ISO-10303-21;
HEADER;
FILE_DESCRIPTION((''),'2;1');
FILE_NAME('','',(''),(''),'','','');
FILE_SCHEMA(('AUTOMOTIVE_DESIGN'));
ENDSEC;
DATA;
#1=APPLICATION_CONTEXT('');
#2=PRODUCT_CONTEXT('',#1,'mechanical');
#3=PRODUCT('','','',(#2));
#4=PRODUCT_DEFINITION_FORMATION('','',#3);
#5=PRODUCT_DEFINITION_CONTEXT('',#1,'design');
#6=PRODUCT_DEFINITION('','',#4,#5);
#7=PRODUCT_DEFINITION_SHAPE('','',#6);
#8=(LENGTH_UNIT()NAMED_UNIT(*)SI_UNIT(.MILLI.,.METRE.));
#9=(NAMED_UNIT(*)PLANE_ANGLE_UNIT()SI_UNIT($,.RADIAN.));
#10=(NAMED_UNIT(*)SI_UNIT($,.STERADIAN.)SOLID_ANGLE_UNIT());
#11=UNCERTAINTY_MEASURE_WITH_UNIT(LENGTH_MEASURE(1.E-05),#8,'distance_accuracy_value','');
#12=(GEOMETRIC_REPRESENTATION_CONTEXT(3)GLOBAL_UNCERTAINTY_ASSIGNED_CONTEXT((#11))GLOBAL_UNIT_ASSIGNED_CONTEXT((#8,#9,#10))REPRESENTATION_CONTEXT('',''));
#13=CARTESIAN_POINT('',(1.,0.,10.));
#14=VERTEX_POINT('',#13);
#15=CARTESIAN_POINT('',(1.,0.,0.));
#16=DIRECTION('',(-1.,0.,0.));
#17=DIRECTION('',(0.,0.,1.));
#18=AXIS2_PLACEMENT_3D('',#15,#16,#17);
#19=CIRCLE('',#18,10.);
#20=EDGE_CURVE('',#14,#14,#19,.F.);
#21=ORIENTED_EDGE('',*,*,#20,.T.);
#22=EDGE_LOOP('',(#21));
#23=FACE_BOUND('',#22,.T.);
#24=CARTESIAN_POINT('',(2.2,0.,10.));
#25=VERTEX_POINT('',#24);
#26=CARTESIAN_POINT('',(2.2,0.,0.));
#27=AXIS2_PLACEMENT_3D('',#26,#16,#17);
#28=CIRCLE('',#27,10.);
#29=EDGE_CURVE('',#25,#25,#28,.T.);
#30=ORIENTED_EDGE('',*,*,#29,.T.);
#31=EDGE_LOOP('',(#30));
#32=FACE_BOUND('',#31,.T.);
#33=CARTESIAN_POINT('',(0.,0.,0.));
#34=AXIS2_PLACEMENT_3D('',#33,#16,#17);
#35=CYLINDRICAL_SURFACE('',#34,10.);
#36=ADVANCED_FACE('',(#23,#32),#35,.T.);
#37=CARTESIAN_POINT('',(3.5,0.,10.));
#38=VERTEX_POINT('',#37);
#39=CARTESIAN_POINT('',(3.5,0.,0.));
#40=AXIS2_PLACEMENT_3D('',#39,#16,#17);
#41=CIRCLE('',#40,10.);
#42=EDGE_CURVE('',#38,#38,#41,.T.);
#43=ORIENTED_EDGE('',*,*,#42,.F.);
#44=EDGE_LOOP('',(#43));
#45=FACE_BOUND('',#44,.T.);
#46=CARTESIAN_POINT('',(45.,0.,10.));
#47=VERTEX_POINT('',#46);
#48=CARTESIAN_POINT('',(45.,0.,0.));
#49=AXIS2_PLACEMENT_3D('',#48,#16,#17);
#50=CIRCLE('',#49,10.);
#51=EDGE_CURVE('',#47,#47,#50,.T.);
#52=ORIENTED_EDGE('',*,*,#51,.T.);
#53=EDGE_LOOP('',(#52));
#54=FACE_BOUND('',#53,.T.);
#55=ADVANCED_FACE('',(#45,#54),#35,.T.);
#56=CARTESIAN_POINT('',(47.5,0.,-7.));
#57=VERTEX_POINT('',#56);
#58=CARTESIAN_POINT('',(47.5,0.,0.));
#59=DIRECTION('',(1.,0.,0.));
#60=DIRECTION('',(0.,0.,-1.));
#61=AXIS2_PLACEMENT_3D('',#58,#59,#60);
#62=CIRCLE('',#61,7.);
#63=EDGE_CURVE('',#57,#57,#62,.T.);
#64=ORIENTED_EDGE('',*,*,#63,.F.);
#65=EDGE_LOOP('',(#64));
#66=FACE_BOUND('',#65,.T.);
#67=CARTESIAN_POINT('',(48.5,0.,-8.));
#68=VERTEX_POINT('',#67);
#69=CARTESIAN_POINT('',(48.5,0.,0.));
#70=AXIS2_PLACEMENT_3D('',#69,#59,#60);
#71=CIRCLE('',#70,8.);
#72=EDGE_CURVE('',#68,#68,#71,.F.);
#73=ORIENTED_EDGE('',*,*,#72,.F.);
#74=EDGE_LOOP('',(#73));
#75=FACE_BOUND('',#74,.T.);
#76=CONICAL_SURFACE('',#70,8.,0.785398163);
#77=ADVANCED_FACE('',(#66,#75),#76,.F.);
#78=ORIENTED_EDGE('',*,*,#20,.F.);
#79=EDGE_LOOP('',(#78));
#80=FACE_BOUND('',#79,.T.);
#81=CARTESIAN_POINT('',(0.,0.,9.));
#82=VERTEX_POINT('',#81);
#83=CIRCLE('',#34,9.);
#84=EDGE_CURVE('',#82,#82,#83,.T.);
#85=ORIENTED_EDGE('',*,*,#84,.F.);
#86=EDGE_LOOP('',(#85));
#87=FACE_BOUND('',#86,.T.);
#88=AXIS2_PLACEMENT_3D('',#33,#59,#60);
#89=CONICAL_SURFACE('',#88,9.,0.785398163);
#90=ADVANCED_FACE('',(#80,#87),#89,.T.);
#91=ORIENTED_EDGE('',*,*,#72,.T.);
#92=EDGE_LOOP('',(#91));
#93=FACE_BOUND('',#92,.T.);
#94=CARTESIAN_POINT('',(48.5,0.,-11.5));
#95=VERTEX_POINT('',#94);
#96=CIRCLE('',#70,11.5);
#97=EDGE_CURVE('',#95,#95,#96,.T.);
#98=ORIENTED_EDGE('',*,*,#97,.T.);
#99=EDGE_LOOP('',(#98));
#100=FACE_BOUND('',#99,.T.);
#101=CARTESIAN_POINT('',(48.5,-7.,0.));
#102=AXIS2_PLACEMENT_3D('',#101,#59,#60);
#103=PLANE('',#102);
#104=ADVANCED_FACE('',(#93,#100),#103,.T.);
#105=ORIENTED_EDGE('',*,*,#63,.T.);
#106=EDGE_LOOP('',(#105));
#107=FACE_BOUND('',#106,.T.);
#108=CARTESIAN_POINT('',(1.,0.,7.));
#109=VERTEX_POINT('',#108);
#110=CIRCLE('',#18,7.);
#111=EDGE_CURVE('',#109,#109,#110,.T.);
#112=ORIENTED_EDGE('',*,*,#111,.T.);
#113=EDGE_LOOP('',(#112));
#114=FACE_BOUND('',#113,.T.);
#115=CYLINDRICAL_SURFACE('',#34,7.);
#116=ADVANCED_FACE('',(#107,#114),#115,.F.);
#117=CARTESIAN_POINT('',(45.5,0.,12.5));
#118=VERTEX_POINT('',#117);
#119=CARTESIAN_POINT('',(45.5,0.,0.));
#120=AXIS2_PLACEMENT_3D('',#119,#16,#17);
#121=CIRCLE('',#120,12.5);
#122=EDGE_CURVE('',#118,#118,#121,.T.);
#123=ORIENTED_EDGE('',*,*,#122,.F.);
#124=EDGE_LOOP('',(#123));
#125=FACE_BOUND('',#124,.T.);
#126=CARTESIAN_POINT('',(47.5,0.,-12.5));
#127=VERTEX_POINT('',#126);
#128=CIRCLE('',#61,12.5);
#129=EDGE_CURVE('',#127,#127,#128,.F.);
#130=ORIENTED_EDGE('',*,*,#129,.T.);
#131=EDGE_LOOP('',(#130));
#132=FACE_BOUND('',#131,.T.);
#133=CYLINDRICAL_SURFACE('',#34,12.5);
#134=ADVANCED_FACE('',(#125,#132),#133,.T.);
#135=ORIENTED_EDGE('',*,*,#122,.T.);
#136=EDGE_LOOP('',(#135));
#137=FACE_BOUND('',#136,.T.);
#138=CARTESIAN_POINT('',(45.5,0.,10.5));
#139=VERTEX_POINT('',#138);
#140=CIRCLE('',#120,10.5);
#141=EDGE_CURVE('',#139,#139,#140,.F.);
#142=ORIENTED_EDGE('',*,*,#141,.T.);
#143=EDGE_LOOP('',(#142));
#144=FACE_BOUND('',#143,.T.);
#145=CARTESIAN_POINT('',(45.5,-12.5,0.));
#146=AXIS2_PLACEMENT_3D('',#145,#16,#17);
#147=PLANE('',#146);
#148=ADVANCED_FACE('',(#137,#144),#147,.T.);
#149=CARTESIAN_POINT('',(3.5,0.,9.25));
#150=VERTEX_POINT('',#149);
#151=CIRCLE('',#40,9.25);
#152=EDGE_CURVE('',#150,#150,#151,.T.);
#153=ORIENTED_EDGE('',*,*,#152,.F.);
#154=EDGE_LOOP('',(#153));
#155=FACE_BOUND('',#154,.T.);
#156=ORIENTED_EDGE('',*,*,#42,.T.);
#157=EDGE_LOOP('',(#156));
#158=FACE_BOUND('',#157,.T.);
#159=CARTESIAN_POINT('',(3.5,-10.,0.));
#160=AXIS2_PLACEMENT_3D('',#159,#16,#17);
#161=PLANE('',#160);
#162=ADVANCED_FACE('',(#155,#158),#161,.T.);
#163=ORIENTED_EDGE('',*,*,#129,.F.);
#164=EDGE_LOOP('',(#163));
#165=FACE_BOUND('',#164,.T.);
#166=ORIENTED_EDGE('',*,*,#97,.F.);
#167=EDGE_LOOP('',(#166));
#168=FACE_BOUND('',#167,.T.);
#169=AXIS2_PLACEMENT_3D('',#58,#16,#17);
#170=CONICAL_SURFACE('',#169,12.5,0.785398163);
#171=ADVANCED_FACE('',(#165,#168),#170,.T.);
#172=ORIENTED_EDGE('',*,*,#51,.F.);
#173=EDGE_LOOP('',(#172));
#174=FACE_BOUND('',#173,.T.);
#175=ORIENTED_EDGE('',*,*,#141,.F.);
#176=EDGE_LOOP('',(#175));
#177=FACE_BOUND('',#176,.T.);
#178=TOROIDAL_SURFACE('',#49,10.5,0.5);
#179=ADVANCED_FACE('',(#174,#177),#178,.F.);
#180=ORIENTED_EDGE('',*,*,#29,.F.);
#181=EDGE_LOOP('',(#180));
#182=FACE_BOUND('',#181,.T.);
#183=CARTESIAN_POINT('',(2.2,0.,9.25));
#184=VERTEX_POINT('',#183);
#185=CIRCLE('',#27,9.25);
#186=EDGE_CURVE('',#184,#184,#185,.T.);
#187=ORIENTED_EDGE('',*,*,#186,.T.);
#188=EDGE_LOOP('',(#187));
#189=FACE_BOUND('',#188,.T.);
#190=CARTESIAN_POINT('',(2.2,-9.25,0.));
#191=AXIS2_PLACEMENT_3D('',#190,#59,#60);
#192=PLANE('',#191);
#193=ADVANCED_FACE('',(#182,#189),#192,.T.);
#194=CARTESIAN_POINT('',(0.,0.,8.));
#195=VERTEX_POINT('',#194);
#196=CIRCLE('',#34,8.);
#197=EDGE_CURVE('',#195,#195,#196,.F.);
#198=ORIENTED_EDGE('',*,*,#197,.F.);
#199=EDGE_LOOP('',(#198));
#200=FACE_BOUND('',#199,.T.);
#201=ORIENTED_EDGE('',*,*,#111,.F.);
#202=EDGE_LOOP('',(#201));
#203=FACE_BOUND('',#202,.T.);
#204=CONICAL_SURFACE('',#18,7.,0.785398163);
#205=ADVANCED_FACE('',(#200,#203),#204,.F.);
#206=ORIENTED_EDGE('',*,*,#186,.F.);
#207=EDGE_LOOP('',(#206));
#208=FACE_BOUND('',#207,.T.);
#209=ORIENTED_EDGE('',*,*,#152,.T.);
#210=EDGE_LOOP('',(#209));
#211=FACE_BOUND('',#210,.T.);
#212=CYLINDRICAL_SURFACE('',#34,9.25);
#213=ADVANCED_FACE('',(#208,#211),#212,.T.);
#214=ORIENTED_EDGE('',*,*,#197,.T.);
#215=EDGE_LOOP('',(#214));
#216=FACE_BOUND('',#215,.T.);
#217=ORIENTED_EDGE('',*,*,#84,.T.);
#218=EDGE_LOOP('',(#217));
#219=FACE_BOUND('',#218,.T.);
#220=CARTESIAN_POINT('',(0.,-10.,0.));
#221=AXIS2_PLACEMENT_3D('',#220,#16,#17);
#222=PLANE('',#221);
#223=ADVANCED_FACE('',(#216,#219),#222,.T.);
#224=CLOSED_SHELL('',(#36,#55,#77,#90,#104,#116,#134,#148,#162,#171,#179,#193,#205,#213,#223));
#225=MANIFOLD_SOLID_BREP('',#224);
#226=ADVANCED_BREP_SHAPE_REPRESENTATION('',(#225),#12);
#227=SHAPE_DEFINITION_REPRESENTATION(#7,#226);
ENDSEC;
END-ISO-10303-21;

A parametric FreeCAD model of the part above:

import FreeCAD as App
import Part
import Sketcher
Q = App.Units.Quantity


def edges_at(feature, points):
    """Names of the edges that pass closest to the given points."""
    edges = feature.Shape.Edges
    near = lambda p: min(range(len(edges)), key=lambda i: edges[i].distToShape(Part.Vertex(*p))[0])
    return sorted({f"Edge{near(p) + 1}" for p in points})

doc = App.newDocument("Part")
body = doc.addObject("PartDesign::Body", "Body")

# Sketch on XY plane
sketch1 = body.newObject("Sketcher::SketchObject", "Sketch")
sketch1.AttachmentSupport = (doc.getObject("XY_Plane"), [""])
sketch1.MapMode = "FlatFace"
sketch1.addGeometry([
    Part.LineSegment(App.Vector(48.5, -7, 0), App.Vector(0, -7, 0)),  # 0
    Part.LineSegment(App.Vector(0, -7, 0), App.Vector(0, -10, 0)),  # 1
    Part.LineSegment(App.Vector(0, -10, 0), App.Vector(2.2, -10, 0)),  # 2
    Part.LineSegment(App.Vector(2.2, -10, 0), App.Vector(2.2, -9.2, 0)),  # 3
    Part.LineSegment(App.Vector(2.2, -9.2, 0), App.Vector(3.5, -9.2, 0)),  # 4
    Part.LineSegment(App.Vector(3.5, -9.2, 0), App.Vector(3.5, -10, 0)),  # 5
    Part.LineSegment(App.Vector(3.5, -10, 0), App.Vector(45.5, -10, 0)),  # 6
    Part.LineSegment(App.Vector(45.5, -10, 0), App.Vector(45.5, -12.5, 0)),  # 7
    Part.LineSegment(App.Vector(45.5, -12.5, 0), App.Vector(48.5, -12.5, 0)),  # 8
    Part.LineSegment(App.Vector(48.5, -12.5, 0), App.Vector(48.5, -7, 0)),  # 9
], False)
sketch1.addConstraint([
    Sketcher.Constraint("Coincident", 0, 2, 1, 1),
    Sketcher.Constraint("Coincident", 1, 2, 2, 1),
    Sketcher.Constraint("Coincident", 2, 2, 3, 1),
    Sketcher.Constraint("Coincident", 3, 2, 4, 1),
    Sketcher.Constraint("Coincident", 4, 2, 5, 1),
    Sketcher.Constraint("Coincident", 5, 2, 6, 1),
    Sketcher.Constraint("Coincident", 6, 2, 7, 1),
    Sketcher.Constraint("Coincident", 7, 2, 8, 1),
    Sketcher.Constraint("Coincident", 8, 2, 9, 1),
    Sketcher.Constraint("Coincident", 9, 2, 0, 1),
    Sketcher.Constraint("Horizontal", 0),
    Sketcher.Constraint("Vertical", 1),
    Sketcher.Constraint("Horizontal", 2),
    Sketcher.Constraint("Vertical", 3),
    Sketcher.Constraint("Horizontal", 4),
    Sketcher.Constraint("Vertical", 5),
    Sketcher.Constraint("Horizontal", 6),
    Sketcher.Constraint("Vertical", 7),
    Sketcher.Constraint("Horizontal", 8),
    Sketcher.Constraint("Vertical", 9),
    Sketcher.Constraint("PointOnObject", 0, 2, -2),
    Sketcher.Constraint("Horizontal", 2, 2, 5, 2),
    Sketcher.Constraint("Equal", 8, 1),
    Sketcher.Constraint("DistanceX", 6, 1, 6, 2, Q("42 mm")),
    Sketcher.Constraint("DistanceX", 8, 1, 8, 2, Q("3 mm")),
    Sketcher.Constraint("DistanceX", 0, 2, 0, 1, Q("48.5 mm")),
    Sketcher.Constraint("DistanceX", 2, 1, 2, 2, Q("2.2 mm")),
    Sketcher.Constraint("DistanceY", 7, 2, 7, 1, Q("2.5 mm")),
    Sketcher.Constraint("DistanceY", 0, 2, -1, 1, Q("7 mm")),
    Sketcher.Constraint("DistanceY", 3, 1, 3, 2, Q("0.75 mm")),
])
revolution = body.newObject("PartDesign::Revolution", "Revolution")
revolution.Profile = sketch1
revolution.ReferenceAxis = (sketch1, ["H_Axis"])
revolution.Angle = 360
doc.recompute()

chamfer = body.newObject("PartDesign::Chamfer", "Chamfer")
chamfer.Base = (revolution, edges_at(revolution, [
    (48.5, 0, -12.5),
    (48.5, 0, -7),
    (0, 0, -7),
    (0, 0, -10),
]))
chamfer.Size = 1
doc.recompute()

fillet = body.newObject("PartDesign::Fillet", "Fillet")
fillet.Base = (chamfer, edges_at(chamfer, [(45.5, 0, -10)]))
fillet.Radius = 0.5

doc.recompute()
